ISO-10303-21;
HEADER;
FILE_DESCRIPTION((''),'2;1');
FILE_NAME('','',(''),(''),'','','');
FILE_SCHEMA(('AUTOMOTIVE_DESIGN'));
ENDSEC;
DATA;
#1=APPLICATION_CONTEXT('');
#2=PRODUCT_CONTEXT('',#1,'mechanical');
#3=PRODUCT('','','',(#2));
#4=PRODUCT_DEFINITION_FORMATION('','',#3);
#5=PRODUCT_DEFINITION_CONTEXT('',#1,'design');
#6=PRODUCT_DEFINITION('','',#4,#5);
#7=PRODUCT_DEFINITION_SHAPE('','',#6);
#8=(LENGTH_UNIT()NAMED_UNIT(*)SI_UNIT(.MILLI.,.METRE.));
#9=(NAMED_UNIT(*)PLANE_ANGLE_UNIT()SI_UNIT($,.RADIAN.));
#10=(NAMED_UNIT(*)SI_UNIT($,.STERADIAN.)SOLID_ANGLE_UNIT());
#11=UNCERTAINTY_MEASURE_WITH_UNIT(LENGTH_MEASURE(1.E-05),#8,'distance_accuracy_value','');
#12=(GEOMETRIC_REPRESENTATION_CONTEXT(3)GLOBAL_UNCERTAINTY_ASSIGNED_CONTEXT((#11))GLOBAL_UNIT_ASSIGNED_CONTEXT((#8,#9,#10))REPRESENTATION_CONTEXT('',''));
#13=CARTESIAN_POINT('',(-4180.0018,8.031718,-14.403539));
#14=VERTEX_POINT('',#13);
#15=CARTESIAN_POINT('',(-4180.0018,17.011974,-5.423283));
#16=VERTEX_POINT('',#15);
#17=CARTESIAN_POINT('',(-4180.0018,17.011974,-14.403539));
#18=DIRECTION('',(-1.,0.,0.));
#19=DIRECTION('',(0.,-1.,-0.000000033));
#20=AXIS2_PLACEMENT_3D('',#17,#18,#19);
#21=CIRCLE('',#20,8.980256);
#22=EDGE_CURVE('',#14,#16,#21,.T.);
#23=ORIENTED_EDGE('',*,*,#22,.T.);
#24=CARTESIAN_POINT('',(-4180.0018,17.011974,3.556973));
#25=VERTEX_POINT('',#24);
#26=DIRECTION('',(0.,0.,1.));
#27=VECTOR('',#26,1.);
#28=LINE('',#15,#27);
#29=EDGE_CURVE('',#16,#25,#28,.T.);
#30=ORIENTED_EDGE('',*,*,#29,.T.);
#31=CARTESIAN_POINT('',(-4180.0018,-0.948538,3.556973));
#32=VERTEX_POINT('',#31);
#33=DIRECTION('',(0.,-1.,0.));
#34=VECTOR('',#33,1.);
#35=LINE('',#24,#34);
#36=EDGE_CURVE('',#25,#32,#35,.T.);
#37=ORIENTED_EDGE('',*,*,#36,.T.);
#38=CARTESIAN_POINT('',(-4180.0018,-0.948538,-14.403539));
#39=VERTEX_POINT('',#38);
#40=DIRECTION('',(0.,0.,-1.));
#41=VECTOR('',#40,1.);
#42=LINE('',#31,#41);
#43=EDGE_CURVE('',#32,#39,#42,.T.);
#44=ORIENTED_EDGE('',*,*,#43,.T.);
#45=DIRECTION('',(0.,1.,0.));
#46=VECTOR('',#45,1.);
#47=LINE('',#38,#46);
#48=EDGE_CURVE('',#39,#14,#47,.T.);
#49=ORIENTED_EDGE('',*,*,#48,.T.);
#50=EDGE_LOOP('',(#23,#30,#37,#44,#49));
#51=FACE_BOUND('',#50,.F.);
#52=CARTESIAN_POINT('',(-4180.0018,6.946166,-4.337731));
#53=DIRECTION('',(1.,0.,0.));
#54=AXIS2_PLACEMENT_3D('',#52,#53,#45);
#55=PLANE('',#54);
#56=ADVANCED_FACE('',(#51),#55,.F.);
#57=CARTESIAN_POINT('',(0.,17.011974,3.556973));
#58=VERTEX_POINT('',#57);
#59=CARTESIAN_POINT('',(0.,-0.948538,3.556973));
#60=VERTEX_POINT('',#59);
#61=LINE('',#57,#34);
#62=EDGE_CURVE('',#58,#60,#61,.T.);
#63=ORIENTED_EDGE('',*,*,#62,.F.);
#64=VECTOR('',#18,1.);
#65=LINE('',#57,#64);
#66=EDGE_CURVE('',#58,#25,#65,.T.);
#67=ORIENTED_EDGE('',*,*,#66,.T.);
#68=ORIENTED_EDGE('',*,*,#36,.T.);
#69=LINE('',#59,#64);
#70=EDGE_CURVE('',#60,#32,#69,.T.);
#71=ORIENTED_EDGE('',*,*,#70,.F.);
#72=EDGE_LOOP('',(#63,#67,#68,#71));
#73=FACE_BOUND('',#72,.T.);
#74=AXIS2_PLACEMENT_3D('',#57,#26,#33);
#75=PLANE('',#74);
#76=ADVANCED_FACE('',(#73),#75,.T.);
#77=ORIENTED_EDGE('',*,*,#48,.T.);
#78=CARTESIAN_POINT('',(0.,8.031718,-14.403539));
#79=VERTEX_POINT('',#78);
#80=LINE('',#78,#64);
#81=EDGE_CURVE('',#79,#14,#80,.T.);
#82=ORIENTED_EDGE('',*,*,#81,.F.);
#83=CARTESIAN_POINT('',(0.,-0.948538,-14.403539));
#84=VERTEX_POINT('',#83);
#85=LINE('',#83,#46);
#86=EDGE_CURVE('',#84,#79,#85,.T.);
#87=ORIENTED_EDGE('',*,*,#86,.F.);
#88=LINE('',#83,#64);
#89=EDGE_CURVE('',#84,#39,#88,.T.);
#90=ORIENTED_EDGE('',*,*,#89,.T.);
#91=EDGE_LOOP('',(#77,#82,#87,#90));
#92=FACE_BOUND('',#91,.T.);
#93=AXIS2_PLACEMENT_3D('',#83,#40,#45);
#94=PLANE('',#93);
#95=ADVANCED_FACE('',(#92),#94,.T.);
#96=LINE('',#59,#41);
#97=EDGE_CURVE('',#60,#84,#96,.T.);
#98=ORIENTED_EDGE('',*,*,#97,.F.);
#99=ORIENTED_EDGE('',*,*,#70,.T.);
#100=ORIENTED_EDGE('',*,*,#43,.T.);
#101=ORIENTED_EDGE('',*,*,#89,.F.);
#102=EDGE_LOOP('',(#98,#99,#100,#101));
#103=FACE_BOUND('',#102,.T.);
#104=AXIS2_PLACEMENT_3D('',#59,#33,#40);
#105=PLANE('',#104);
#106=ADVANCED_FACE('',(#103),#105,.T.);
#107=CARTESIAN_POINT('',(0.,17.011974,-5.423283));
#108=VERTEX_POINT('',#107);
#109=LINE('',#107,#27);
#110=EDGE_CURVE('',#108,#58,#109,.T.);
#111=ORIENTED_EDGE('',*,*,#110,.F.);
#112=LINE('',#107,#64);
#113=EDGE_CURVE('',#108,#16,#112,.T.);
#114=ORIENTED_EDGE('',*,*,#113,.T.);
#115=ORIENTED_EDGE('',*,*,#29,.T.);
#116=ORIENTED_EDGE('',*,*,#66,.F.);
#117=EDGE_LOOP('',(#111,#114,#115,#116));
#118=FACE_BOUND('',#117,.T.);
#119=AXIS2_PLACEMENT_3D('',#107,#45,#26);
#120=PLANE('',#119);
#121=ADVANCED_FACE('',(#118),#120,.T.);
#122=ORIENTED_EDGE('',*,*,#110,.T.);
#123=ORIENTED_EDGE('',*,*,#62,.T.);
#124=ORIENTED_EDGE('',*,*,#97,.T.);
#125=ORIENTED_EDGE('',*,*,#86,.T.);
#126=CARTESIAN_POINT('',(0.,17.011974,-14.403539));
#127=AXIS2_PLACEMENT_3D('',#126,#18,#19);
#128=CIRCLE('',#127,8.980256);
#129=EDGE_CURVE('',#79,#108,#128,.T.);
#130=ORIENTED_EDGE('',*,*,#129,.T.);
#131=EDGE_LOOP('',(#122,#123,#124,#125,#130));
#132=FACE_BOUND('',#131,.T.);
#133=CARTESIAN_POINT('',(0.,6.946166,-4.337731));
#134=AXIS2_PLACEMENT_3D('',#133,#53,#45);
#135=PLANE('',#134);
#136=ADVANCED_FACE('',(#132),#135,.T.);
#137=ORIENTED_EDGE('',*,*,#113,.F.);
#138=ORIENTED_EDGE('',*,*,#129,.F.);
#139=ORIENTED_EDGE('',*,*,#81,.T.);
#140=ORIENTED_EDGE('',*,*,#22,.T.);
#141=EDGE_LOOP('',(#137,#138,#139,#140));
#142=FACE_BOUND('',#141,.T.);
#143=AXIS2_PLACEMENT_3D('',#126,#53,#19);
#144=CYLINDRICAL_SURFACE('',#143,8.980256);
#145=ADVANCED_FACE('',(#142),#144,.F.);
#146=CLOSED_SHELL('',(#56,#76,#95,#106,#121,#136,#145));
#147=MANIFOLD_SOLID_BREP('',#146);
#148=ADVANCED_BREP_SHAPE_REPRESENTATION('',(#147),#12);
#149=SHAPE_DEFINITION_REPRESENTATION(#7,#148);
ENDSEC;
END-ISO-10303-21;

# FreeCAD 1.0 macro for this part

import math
import FreeCAD as App
import Part
import Sketcher
Q = App.Units.Quantity

doc = App.newDocument("Part")
body = doc.addObject("PartDesign::Body", "Body")

# Sketch on YZ plane
sketch1 = body.newObject("Sketcher::SketchObject", "Sketch")
sketch1.AttachmentSupport = (doc.getObject("YZ_Plane"), [""])
sketch1.MapMode = "FlatFace"
sketch1.addGeometry([
    Part.LineSegment(App.Vector(17, 4, 0), App.Vector(-1, 4, 0)),  # 0
    Part.LineSegment(App.Vector(-1, 4, 0), App.Vector(-1, -14, 0)),  # 1
    Part.LineSegment(App.Vector(-1, -14, 0), App.Vector(8, -14, 0)),  # 2
    Part.ArcOfCircle(Part.Circle(App.Vector(17, -14, 0), App.Vector(0, 0, 1), 9), math.radians(90), math.radians(180)),  # 3
    Part.LineSegment(App.Vector(17, -5, 0), App.Vector(17, 4, 0)),  # 4
], False)
sketch1.addConstraint([
    Sketcher.Constraint("Coincident", 0, 2, 1, 1),
    Sketcher.Constraint("Coincident", 1, 2, 2, 1),
    Sketcher.Constraint("Coincident", 2, 2, 3, 2),
    Sketcher.Constraint("Coincident", 3, 1, 4, 1),
    Sketcher.Constraint("Coincident", 4, 2, 0, 1),
    Sketcher.Constraint("Horizontal", 0),
    Sketcher.Constraint("Vertical", 1),
    Sketcher.Constraint("Horizontal", 2),
    Sketcher.Constraint("Vertical", 4),
    Sketcher.Constraint("Horizontal", 3, 3, 1, 2),
    Sketcher.Constraint("Equal", 0, 1),
    Sketcher.Constraint("Equal", 2, 4),
    Sketcher.Constraint("Radius", 3, Q("8.980256 mm")),
    Sketcher.Constraint("DistanceX", 0, 2, 0, 1, Q("17.960512 mm")),
    Sketcher.Constraint("DistanceY", 3, 3, -1, 1, Q("14.403539 mm")),
    Sketcher.Constraint("DistanceX", -1, 1, 3, 3, Q("17.011974 mm")),
])
pad1 = body.newObject("PartDesign::Pad", "Pad")
pad1.Profile = sketch1
pad1.Length = Q("164.567 in")
pad1.Reversed = True

doc.recompute()
